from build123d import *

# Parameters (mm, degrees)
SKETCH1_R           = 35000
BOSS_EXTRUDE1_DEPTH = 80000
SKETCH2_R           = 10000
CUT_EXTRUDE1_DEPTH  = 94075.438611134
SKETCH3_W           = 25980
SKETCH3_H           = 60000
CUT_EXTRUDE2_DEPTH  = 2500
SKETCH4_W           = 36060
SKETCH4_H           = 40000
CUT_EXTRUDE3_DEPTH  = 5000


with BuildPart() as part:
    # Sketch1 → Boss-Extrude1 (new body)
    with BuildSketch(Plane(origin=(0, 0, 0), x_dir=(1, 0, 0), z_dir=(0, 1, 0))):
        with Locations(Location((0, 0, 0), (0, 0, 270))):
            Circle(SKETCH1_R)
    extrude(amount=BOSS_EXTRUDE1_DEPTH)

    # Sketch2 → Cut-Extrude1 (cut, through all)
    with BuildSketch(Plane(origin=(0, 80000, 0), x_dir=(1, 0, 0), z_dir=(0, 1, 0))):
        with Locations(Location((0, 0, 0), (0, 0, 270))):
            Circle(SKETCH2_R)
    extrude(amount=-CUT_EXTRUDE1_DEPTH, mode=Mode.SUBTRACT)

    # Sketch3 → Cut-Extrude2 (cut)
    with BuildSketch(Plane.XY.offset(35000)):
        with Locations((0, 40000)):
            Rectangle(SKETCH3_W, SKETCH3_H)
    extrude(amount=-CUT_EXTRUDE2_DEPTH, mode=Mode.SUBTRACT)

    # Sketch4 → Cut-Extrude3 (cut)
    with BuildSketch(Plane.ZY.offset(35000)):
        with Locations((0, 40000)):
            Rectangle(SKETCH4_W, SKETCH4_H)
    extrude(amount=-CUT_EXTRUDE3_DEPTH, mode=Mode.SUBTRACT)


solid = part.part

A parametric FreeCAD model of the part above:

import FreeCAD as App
import Part
import Sketcher

V = App.Vector


def add_polygon(sketch, points):
    """Adds a closed chain of lines whose ends are joined by coincident constraints."""
    first, n = sketch.GeometryCount, len(points)
    for a, b in zip(points, points[1:] + points[:1]):
        sketch.addGeometry(Part.LineSegment(App.Vector(*a, 0), App.Vector(*b, 0)), False)
    for i in range(n):
        sketch.addConstraint(Sketcher.Constraint("Coincident", first + i, 2, first + (i + 1) % n, 1))

doc = App.newDocument("Part")
body = doc.addObject("PartDesign::Body", "Body")

sketch1 = body.newObject("Sketcher::SketchObject", "Sketch")
sketch1.AttachmentSupport = (doc.getObject("XZ_Plane"), [""])
sketch1.MapMode = "FlatFace"
sketch1.addGeometry(Part.Circle(V(0, 0, 0), V(0, 0, 1), 35000), False)
sketch1.addConstraint([
    Sketcher.Constraint("Coincident", 0, 3, -1, 1),
    Sketcher.Constraint("Diameter", 0, 70000.0),
])
pad1 = body.newObject("PartDesign::Pad", "Pad")
pad1.Profile = sketch1
pad1.Length = 80000
pad1.Reversed = True

sketch2 = body.newObject("Sketcher::SketchObject", "Sketch001")
sketch2.AttachmentSupport = (doc.getObject("XZ_Plane"), [""])
sketch2.MapMode = "FlatFace"
sketch2.AttachmentOffset = App.Placement(V(0, 0, -80000), App.Rotation())
sketch2.addGeometry(Part.Circle(V(0, 0, 0), V(0, 0, 1), 10000), False)
sketch2.addConstraint([
    Sketcher.Constraint("Coincident", 0, 3, -1, 1),
    Sketcher.Constraint("Diameter", 0, 20000.0),
])
pocket1 = body.newObject("PartDesign::Pocket", "Pocket")
pocket1.Profile = sketch2
pocket1.Type = "ThroughAll"
pocket1.Reversed = True

sketch3 = body.newObject("Sketcher::SketchObject", "Sketch002")
sketch3.AttachmentSupport = (doc.getObject("XY_Plane"), [""])
sketch3.MapMode = "FlatFace"
sketch3.AttachmentOffset = App.Placement(V(0, 0, 35000), App.Rotation())
add_polygon(sketch3, [(-12990, 70000), (-12990, 10000), (12990, 10000), (12990, 70000)])
sketch3.addConstraint([
    Sketcher.Constraint("Vertical", 0),
    Sketcher.Constraint("Horizontal", 1),
    Sketcher.Constraint("Vertical", 2),
    Sketcher.Constraint("Horizontal", 3),
    Sketcher.Constraint("DistanceX", 1, 1, 1, 2, 25980.0),
    Sketcher.Constraint("DistanceY", 0, 2, 0, 1, 60000.0),
    Sketcher.Constraint("DistanceX", 0, 2, -1, 1, 12990.0),
    Sketcher.Constraint("DistanceY", -1, 1, 0, 2, 10000.0),
])
pocket2 = body.newObject("PartDesign::Pocket", "Pocket001")
pocket2.Profile = sketch3
pocket2.Length = 2500

sketch4 = body.newObject("Sketcher::SketchObject", "Sketch003")
sketch4.AttachmentSupport = (doc.getObject("YZ_Plane"), [""])
sketch4.MapMode = "FlatFace"
sketch4.AttachmentOffset = App.Placement(V(0, 0, -35000), App.Rotation())
add_polygon(sketch4, [(60000, -18030), (20000, -18030), (20000, 18030), (60000, 18030)])
sketch4.addConstraint([
    Sketcher.Constraint("Horizontal", 0),
    Sketcher.Constraint("Vertical", 1),
    Sketcher.Constraint("Horizontal", 2),
    Sketcher.Constraint("Vertical", 3),
    Sketcher.Constraint("DistanceX", 0, 2, 0, 1, 40000.0),
    Sketcher.Constraint("DistanceY", 1, 1, 1, 2, 36060.0),
    Sketcher.Constraint("DistanceX", -1, 1, 0, 2, 20000.0),
    Sketcher.Constraint("DistanceY", 0, 2, -1, 1, 18030.0),
])
pocket3 = body.newObject("PartDesign::Pocket", "Pocket002")
pocket3.Profile = sketch4
pocket3.Length = 5000
pocket3.Reversed = True

doc.recompute()
